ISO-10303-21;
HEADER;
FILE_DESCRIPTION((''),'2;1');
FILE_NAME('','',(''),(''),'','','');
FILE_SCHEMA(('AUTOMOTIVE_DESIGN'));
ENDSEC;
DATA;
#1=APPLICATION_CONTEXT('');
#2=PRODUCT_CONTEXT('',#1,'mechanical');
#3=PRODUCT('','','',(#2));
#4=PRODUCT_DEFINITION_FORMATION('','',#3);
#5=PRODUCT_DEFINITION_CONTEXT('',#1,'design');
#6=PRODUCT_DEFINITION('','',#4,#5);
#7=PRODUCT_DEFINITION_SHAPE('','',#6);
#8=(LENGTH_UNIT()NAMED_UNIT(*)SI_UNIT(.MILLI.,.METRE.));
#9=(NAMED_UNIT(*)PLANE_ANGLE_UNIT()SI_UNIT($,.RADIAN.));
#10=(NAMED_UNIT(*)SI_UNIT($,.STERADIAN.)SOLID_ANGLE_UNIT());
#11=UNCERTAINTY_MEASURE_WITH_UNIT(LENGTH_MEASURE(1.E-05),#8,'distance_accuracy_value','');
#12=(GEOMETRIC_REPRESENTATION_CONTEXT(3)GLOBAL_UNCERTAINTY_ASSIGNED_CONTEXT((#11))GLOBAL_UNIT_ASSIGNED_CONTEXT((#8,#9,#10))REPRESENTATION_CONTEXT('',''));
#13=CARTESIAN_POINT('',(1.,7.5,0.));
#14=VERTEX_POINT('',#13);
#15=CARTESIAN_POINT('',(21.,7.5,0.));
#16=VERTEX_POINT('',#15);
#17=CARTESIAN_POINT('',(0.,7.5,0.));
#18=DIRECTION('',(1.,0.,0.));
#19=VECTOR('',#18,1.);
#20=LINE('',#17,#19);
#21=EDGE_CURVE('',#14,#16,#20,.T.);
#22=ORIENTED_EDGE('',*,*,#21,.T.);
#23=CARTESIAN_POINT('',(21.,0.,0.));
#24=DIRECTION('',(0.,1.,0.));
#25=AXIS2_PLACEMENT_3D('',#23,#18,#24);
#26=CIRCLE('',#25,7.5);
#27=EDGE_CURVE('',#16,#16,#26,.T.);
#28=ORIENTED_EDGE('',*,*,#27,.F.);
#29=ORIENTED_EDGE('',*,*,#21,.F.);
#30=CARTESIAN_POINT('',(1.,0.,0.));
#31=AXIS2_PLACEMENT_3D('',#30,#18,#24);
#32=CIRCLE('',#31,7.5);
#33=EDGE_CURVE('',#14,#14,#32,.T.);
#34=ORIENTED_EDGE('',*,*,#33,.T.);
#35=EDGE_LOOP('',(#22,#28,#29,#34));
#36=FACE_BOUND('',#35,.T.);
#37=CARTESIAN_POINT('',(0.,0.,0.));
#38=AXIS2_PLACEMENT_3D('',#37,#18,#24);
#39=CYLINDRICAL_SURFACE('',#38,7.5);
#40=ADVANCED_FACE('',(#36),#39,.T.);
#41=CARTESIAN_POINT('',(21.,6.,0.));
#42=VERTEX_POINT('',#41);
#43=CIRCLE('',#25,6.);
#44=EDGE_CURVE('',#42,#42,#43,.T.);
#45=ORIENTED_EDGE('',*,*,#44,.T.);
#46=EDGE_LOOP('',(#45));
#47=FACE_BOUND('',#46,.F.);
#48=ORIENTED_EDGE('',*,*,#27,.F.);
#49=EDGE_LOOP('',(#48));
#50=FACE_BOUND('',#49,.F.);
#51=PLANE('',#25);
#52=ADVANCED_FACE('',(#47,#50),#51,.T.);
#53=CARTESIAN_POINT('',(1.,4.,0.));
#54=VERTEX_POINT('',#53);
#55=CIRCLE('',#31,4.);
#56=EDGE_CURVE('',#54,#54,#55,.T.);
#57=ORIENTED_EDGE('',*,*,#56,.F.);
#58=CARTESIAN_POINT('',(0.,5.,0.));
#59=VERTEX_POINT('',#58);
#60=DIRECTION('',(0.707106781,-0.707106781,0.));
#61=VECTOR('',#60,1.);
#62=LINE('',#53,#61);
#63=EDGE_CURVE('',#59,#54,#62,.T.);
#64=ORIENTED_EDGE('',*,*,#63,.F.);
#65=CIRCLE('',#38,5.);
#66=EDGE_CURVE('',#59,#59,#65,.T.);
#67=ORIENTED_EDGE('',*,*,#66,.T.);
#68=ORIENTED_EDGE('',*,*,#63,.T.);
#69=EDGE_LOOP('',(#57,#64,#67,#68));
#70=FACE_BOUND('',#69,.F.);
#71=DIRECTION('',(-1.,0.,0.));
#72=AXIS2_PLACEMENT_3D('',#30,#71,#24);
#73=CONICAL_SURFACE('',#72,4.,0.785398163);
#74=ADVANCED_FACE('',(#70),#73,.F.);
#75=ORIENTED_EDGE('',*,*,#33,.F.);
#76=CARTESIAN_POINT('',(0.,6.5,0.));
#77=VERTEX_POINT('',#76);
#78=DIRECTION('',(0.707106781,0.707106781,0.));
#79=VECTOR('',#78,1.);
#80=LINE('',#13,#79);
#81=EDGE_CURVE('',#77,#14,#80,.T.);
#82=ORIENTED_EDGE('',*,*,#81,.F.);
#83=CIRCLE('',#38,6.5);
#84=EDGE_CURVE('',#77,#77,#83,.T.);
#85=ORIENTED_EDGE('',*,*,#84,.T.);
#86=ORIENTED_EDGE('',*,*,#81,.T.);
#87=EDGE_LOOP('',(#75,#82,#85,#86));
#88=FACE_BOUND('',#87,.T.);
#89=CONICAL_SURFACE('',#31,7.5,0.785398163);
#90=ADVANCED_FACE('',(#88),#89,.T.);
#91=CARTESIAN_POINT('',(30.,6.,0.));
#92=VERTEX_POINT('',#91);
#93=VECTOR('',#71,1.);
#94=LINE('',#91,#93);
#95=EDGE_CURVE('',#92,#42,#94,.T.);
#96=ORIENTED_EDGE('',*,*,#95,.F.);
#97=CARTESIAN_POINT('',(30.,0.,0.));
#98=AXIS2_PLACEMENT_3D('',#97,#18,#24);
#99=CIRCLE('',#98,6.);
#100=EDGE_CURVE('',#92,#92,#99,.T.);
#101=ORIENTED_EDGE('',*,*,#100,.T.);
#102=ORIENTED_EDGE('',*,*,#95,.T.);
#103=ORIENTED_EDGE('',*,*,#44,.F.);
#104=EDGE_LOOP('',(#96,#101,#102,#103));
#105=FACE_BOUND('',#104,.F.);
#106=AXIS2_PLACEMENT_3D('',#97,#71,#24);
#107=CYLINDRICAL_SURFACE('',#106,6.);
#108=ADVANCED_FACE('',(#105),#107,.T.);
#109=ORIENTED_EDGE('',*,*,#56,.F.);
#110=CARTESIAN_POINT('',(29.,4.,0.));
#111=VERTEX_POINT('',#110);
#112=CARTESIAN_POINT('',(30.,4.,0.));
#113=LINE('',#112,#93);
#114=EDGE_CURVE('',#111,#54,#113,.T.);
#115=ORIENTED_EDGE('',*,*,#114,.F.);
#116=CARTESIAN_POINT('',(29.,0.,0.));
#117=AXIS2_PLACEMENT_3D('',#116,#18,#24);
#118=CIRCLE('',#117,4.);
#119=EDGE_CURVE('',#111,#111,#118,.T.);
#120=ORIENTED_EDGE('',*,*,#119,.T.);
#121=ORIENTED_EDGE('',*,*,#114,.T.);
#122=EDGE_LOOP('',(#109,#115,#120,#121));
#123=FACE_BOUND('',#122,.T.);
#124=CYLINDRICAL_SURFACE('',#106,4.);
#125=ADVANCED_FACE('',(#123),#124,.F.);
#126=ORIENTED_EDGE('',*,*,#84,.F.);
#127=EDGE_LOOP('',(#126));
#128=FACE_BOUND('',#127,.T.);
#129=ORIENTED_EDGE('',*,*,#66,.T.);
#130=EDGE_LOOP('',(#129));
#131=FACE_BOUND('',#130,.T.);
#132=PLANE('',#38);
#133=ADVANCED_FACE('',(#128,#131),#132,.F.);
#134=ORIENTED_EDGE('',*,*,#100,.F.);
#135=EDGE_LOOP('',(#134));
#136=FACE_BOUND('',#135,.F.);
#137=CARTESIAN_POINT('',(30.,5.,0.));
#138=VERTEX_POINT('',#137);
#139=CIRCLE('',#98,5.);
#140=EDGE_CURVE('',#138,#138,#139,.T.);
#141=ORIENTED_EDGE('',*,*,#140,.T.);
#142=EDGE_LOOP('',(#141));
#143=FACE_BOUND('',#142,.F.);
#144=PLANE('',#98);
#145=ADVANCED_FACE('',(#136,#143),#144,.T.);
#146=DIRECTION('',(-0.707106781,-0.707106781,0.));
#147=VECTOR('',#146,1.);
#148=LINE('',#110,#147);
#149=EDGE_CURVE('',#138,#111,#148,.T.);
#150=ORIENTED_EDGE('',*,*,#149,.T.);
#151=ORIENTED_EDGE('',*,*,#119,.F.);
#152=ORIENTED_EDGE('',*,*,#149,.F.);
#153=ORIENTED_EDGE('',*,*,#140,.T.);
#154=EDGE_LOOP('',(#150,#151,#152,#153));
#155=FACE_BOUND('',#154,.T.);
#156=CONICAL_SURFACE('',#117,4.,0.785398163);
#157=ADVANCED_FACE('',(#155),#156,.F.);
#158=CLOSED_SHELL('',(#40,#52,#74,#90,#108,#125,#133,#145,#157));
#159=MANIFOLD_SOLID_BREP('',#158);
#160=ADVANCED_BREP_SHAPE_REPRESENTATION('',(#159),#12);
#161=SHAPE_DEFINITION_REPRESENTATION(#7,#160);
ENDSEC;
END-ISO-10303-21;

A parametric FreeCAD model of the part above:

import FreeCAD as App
import Part
import Sketcher

V = App.Vector


def edges_at(feature, points):
    """Names of the edges that pass closest to the given points."""
    edges = feature.Shape.Edges
    near = lambda p: min(range(len(edges)), key=lambda i: edges[i].distToShape(Part.Vertex(*p))[0])
    return sorted({f"Edge{near(p) + 1}" for p in points})


def add_polygon(sketch, points):
    """Adds a closed chain of lines whose ends are joined by coincident constraints."""
    first, n = sketch.GeometryCount, len(points)
    for a, b in zip(points, points[1:] + points[:1]):
        sketch.addGeometry(Part.LineSegment(App.Vector(*a, 0), App.Vector(*b, 0)), False)
    for i in range(n):
        sketch.addConstraint(Sketcher.Constraint("Coincident", first + i, 2, first + (i + 1) % n, 1))

doc = App.newDocument("Part")
body = doc.addObject("PartDesign::Body", "Body")

# Sketch on XY plane
sketch1 = doc.addObject("Sketcher::SketchObject", "Sketch")
body.addObject(sketch1)
sketch1.AttachmentSupport = (doc.XY_Plane, [""])
sketch1.MapMode = "FlatFace"
add_polygon(sketch1, [(0, 7.5), (0, 4), (30, 4), (30, 6), (21, 6), (21, 7.5)])  # lines 0-5
sketch1.addConstraint([
    Sketcher.Constraint("Vertical", 0),
    Sketcher.Constraint("Horizontal", 1),
    Sketcher.Constraint("Vertical", 2),
    Sketcher.Constraint("Horizontal", 3),
    Sketcher.Constraint("Vertical", 4),
    Sketcher.Constraint("Horizontal", 5),
    Sketcher.Constraint("PointOnObject", 0, 2, -2),
    Sketcher.Constraint("DistanceX", 1, 1, 1, 2, 30.0),
    Sketcher.Constraint("DistanceX", 5, 2, 5, 1, 21.0),
    Sketcher.Constraint("DistanceY", -1, 1, 0, 2, 4.0),
    Sketcher.Constraint("DistanceY", -1, 1, 2, 2, 6.0),
    Sketcher.Constraint("DistanceY", -1, 1, 4, 2, 7.5),
])
revolution = doc.addObject("PartDesign::Revolution", "Revolution")
body.addObject(revolution)
revolution.Profile = sketch1
revolution.ReferenceAxis = (sketch1, ["H_Axis"])
revolution.Angle = 360
doc.recompute()

chamfer = doc.addObject("PartDesign::Chamfer", "Chamfer")
body.addObject(chamfer)
chamfer.Base = (revolution, edges_at(revolution, [(0, -7.5, 0), (0, -4, 0), (30, -4, 0)]))
chamfer.Size = 1

doc.recompute()
